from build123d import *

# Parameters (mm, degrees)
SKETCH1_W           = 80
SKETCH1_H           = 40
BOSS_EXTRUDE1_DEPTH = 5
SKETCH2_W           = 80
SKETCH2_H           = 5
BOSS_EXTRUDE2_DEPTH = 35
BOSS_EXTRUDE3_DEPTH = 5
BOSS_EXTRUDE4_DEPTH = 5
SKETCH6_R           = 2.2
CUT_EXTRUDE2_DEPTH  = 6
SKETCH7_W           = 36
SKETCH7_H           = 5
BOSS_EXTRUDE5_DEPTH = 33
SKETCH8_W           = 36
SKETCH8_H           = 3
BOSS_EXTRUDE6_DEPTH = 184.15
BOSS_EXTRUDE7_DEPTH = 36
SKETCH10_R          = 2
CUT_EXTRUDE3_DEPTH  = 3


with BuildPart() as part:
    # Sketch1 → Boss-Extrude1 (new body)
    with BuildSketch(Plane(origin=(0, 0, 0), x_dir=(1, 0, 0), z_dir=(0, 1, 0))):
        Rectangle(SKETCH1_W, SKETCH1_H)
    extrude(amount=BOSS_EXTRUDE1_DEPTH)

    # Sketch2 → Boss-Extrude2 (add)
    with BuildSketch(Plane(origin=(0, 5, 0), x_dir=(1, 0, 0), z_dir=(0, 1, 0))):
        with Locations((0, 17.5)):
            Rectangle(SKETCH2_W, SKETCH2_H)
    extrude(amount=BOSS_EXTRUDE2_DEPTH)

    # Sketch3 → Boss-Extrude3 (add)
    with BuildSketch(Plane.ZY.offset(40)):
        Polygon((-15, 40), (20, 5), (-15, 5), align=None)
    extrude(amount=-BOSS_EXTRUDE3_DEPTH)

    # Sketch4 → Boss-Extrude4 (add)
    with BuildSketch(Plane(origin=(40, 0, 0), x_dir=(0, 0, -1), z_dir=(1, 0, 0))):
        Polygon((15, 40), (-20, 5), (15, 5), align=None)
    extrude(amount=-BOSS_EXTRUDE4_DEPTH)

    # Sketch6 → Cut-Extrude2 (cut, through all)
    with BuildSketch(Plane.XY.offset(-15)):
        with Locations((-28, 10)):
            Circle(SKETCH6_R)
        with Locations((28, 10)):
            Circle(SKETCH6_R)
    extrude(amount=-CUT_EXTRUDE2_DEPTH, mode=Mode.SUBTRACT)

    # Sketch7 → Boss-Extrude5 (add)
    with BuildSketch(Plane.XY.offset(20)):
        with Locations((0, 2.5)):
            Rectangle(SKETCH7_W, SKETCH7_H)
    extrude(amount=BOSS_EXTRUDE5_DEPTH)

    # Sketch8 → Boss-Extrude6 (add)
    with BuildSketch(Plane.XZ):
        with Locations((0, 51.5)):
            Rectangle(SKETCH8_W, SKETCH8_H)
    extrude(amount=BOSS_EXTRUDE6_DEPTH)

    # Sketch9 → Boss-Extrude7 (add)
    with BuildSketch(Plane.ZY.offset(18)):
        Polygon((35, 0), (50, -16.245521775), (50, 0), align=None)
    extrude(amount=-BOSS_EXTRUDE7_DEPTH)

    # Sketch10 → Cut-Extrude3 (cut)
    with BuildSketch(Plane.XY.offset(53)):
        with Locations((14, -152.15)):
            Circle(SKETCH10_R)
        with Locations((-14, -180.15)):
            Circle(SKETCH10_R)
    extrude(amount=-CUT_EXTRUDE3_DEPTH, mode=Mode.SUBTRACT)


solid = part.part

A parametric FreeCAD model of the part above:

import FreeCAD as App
import Part
import Sketcher

V = App.Vector
Q = App.Units.Quantity


def add_polygon(sketch, points):
    """Adds a closed chain of lines whose ends are joined by coincident constraints."""
    first, n = sketch.GeometryCount, len(points)
    for a, b in zip(points, points[1:] + points[:1]):
        sketch.addGeometry(Part.LineSegment(App.Vector(*a, 0), App.Vector(*b, 0)), False)
    for i in range(n):
        sketch.addConstraint(Sketcher.Constraint("Coincident", first + i, 2, first + (i + 1) % n, 1))

doc = App.newDocument("Part")
body = doc.addObject("PartDesign::Body", "Body")

sketch1 = body.newObject("Sketcher::SketchObject", "Sketch")
sketch1.AttachmentSupport = (doc.getObject("XZ_Plane"), [""])
sketch1.MapMode = "FlatFace"
add_polygon(sketch1, [(-40, -20), (-40, 20), (40, 20), (40, -20)])
sketch1.addConstraint([
    Sketcher.Constraint("Vertical", 0),
    Sketcher.Constraint("Horizontal", 1),
    Sketcher.Constraint("Vertical", 2),
    Sketcher.Constraint("Horizontal", 3),
    Sketcher.Constraint("Symmetric", 0, 2, 2, 2, -1, 1),
    Sketcher.Constraint("DistanceX", 1, 1, 1, 2, Q("80 mm")),
    Sketcher.Constraint("DistanceY", 0, 1, 0, 2, Q("40 mm")),
])
pad1 = body.newObject("PartDesign::Pad", "Pad")
pad1.Profile = sketch1
pad1.Length = 5
pad1.Reversed = True

sketch2 = body.newObject("Sketcher::SketchObject", "Sketch001")
sketch2.AttachmentSupport = (doc.getObject("XZ_Plane"), [""])
sketch2.MapMode = "FlatFace"
sketch2.AttachmentOffset = App.Placement(V(0, 0, -5), App.Rotation())
add_polygon(sketch2, [(-40, -20), (-40, -15), (40, -15), (40, -20)])
sketch2.addConstraint([
    Sketcher.Constraint("Vertical", 0),
    Sketcher.Constraint("Horizontal", 1),
    Sketcher.Constraint("Vertical", 2),
    Sketcher.Constraint("Horizontal", 3),
    Sketcher.Constraint("DistanceX", 1, 1, 1, 2, Q("80 mm")),
    Sketcher.Constraint("DistanceY", 0, 1, 0, 2, Q("5 mm")),
    Sketcher.Constraint("DistanceX", 0, 2, -1, 1, Q("40 mm")),
    Sketcher.Constraint("DistanceY", 0, 2, -1, 1, Q("15 mm")),
])
pad2 = body.newObject("PartDesign::Pad", "Pad001")
pad2.Profile = sketch2
pad2.Length = 35
pad2.Reversed = True

sketch3 = body.newObject("Sketcher::SketchObject", "Sketch002")
sketch3.AttachmentSupport = (doc.getObject("YZ_Plane"), [""])
sketch3.MapMode = "FlatFace"
sketch3.AttachmentOffset = App.Placement(V(0, 0, -40), App.Rotation())
add_polygon(sketch3, [(5, 20), (40, -15), (5, -15)])
sketch3.addConstraint([
    Sketcher.Constraint("Horizontal", 1),
    Sketcher.Constraint("Vertical", 2),
    Sketcher.Constraint("Equal", 1, 2),
    Sketcher.Constraint("DistanceX", 1, 2, 1, 1, Q("35 mm")),
    Sketcher.Constraint("DistanceX", -1, 1, 0, 2, Q("40 mm")),
    Sketcher.Constraint("DistanceY", 0, 2, -1, 1, Q("15 mm")),
])
pad3 = body.newObject("PartDesign::Pad", "Pad002")
pad3.Profile = sketch3
pad3.Length = 5

sketch4 = body.newObject("Sketcher::SketchObject", "Sketch003")
sketch4.AttachmentSupport = (doc.getObject("YZ_Plane"), [""])
sketch4.MapMode = "FlatFace"
sketch4.AttachmentOffset = App.Placement(V(0, 0, 40), App.Rotation())
add_polygon(sketch4, [(40, -15), (5, 20), (5, -15)])
sketch4.addConstraint([
    Sketcher.Constraint("Vertical", 1),
    Sketcher.Constraint("Horizontal", 2),
    Sketcher.Constraint("Equal", 2, 1),
    Sketcher.Constraint("DistanceX", 2, 1, 2, 2, Q("35 mm")),
    Sketcher.Constraint("DistanceX", -1, 1, 0, 2, Q("5 mm")),
    Sketcher.Constraint("DistanceY", -1, 1, 0, 2, Q("20 mm")),
])
pad4 = body.newObject("PartDesign::Pad", "Pad003")
pad4.Profile = sketch4
pad4.Length = 5
pad4.Reversed = True

sketch5 = body.newObject("Sketcher::SketchObject", "Sketch004")
sketch5.AttachmentSupport = (doc.getObject("XY_Plane"), [""])
sketch5.MapMode = "FlatFace"
sketch5.AttachmentOffset = App.Placement(V(0, 0, -15), App.Rotation())
sketch5.addGeometry([
    Part.Circle(V(-28, 10, 0), V(0, 0, 1), 2.2),
    Part.Circle(V(28, 10, 0), V(0, 0, 1), 2.2),
], False)
sketch5.addConstraint([
    Sketcher.Constraint("Equal", 0, 1),
    Sketcher.Constraint("Symmetric", 0, 3, 1, 3, -2),
    Sketcher.Constraint("Diameter", 0, Q("4.4 mm")),
    Sketcher.Constraint("DistanceX", 0, 3, -1, 1, Q("28 mm")),
    Sketcher.Constraint("DistanceY", -1, 1, 0, 3, Q("10 mm")),
])
pocket1 = body.newObject("PartDesign::Pocket", "Pocket")
pocket1.Profile = sketch5
pocket1.Type = "ThroughAll"

sketch6 = body.newObject("Sketcher::SketchObject", "Sketch005")
sketch6.AttachmentSupport = (doc.getObject("XY_Plane"), [""])
sketch6.MapMode = "FlatFace"
sketch6.AttachmentOffset = App.Placement(V(0, 0, 20), App.Rotation())
add_polygon(sketch6, [(-18, 5), (-18, 0), (18, 0), (18, 5)])
sketch6.addConstraint([
    Sketcher.Constraint("Vertical", 0),
    Sketcher.Constraint("Horizontal", 1),
    Sketcher.Constraint("Vertical", 2),
    Sketcher.Constraint("Horizontal", 3),
    Sketcher.Constraint("Symmetric", 0, 2, 1, 2, -1, 1),
    Sketcher.Constraint("DistanceX", 1, 1, 1, 2, Q("36 mm")),
    Sketcher.Constraint("DistanceY", 0, 2, 0, 1, Q("5 mm")),
])
pad5 = body.newObject("PartDesign::Pad", "Pad004")
pad5.Profile = sketch6
pad5.Length = 33

sketch7 = body.newObject("Sketcher::SketchObject", "Sketch006")
sketch7.AttachmentSupport = (doc.getObject("XZ_Plane"), [""])
sketch7.MapMode = "FlatFace"
add_polygon(sketch7, [(-18, 53), (-18, 50), (18, 50), (18, 53)])
sketch7.addConstraint([
    Sketcher.Constraint("Vertical", 0),
    Sketcher.Constraint("Horizontal", 1),
    Sketcher.Constraint("Vertical", 2),
    Sketcher.Constraint("Horizontal", 3),
    Sketcher.Constraint("DistanceX", 1, 1, 1, 2, Q("36 mm")),
    Sketcher.Constraint("DistanceY", 0, 2, 0, 1, Q("3 mm")),
    Sketcher.Constraint("DistanceX", 0, 2, -1, 1, Q("18 mm")),
    Sketcher.Constraint("DistanceY", -1, 1, 0, 2, Q("50 mm")),
])
pad6 = body.newObject("PartDesign::Pad", "Pad005")
pad6.Profile = sketch7
pad6.Length = 184.15

sketch8 = body.newObject("Sketcher::SketchObject", "Sketch007")
sketch8.AttachmentSupport = (doc.getObject("YZ_Plane"), [""])
sketch8.MapMode = "FlatFace"
sketch8.AttachmentOffset = App.Placement(V(0, 0, -18), App.Rotation())
add_polygon(sketch8, [(0, 35), (-16, 50), (0, 50)])
sketch8.addConstraint([
    Sketcher.Constraint("Horizontal", 1),
    Sketcher.Constraint("Vertical", 2),
    Sketcher.Constraint("PointOnObject", 1, 2, -2),
    Sketcher.Constraint("DistanceY", 2, 2, 2, 1, Q("15 mm")),
    Sketcher.Constraint("DistanceY", -1, 1, 0, 2, Q("50 mm")),
    Sketcher.Constraint("DistanceX", 1, 1, 1, 2, Q("16.245522 mm")),
])
pad7 = body.newObject("PartDesign::Pad", "Pad006")
pad7.Profile = sketch8
pad7.Length = 36

sketch9 = body.newObject("Sketcher::SketchObject", "Sketch008")
sketch9.AttachmentSupport = (doc.getObject("XY_Plane"), [""])
sketch9.MapMode = "FlatFace"
sketch9.AttachmentOffset = App.Placement(V(0, 0, 53), App.Rotation())
sketch9.addGeometry([
    Part.Circle(V(14, -152.2, 0), V(0, 0, 1), 2),
    Part.Circle(V(-14, -180.2, 0), V(0, 0, 1), 2),
], False)
sketch9.addConstraint([
    Sketcher.Constraint("Equal", 0, 1),
    Sketcher.Constraint("Diameter", 0, Q("4 mm")),
    Sketcher.Constraint("DistanceX", -1, 1, 0, 3, Q("14 mm")),
    Sketcher.Constraint("DistanceX", 1, 3, -1, 1, Q("14 mm")),
    Sketcher.Constraint("DistanceY", 1, 3, 0, 3, Q("28 mm")),
    Sketcher.Constraint("DistanceY", 0, 3, -1, 1, Q("152.15 mm")),
])
pocket2 = body.newObject("PartDesign::Pocket", "Pocket001")
pocket2.Profile = sketch9
pocket2.Length = 3

doc.recompute()
